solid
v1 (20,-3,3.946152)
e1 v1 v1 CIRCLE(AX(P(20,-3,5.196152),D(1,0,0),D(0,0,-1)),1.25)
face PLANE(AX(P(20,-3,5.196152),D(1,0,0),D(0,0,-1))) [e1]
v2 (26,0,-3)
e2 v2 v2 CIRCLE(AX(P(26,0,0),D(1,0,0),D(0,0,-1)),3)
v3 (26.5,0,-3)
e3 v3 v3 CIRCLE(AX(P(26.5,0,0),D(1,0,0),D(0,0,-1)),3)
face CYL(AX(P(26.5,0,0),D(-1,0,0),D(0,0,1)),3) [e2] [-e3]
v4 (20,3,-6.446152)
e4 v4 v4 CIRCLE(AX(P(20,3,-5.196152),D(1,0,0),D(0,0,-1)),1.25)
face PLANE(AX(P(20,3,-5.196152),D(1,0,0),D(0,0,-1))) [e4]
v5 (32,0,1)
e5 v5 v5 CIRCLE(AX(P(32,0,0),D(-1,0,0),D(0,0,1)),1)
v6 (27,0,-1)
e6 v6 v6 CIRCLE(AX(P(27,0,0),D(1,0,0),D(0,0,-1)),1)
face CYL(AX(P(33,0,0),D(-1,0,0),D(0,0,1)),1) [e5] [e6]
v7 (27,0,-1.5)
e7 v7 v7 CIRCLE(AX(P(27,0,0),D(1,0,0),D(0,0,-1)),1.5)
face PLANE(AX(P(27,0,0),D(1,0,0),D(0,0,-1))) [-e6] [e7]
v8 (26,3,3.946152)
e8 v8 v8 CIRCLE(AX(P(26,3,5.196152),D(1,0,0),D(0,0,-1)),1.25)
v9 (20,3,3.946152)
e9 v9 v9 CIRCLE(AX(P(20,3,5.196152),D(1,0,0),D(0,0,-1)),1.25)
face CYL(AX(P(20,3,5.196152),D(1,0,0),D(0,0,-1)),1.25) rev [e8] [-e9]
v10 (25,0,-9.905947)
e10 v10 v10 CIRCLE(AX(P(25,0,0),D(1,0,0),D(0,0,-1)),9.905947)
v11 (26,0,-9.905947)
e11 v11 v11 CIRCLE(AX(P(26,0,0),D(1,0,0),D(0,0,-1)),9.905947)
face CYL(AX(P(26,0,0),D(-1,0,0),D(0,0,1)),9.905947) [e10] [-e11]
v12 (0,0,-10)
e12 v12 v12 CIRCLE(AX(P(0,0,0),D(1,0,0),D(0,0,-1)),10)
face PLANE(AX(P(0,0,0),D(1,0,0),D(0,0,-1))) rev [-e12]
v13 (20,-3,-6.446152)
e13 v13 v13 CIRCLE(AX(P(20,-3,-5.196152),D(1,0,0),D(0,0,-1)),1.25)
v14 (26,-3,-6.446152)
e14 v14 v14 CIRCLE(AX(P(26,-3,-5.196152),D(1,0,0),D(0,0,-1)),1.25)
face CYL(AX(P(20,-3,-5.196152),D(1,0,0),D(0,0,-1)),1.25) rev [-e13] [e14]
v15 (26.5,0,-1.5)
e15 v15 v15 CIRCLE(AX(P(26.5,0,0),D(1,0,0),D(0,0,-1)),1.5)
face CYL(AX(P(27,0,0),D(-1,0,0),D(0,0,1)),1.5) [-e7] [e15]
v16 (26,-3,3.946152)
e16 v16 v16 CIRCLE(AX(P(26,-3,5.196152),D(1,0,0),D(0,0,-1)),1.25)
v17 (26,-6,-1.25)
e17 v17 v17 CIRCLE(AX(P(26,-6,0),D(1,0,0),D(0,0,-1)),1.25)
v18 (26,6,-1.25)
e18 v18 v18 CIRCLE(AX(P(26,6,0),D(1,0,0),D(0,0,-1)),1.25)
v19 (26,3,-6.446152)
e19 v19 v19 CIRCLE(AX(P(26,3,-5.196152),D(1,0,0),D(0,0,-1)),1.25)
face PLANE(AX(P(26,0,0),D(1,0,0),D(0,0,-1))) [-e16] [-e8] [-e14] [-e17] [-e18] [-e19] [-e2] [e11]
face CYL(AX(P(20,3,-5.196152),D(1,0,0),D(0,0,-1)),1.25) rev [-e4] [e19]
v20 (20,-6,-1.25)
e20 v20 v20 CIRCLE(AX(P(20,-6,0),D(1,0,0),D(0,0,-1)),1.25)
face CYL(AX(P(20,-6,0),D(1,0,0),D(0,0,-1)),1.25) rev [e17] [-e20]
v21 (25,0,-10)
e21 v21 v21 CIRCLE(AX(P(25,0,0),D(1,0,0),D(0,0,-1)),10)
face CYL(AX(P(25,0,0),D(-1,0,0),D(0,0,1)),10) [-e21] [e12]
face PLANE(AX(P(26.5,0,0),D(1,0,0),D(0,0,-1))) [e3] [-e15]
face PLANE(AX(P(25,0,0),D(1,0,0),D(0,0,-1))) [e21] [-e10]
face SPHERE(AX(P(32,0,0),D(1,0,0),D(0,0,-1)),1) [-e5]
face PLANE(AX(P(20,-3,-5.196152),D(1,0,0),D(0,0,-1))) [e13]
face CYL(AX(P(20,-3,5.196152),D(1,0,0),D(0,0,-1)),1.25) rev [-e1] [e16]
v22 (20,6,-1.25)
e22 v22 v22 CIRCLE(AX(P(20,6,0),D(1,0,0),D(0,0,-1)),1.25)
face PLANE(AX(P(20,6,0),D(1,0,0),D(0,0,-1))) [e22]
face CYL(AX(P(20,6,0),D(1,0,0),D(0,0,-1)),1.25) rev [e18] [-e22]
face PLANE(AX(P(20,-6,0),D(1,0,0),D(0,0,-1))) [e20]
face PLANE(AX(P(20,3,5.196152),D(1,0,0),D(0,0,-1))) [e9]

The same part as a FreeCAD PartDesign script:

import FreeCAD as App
import Part
import Sketcher

V = App.Vector


def edges_at(feature, points):
    """Names of the edges that pass closest to the given points."""
    edges = feature.Shape.Edges
    near = lambda p: min(range(len(edges)), key=lambda i: edges[i].distToShape(Part.Vertex(*p))[0])
    return sorted({f"Edge{near(p) + 1}" for p in points})

doc = App.newDocument("Part")
body = doc.addObject("PartDesign::Body", "Body")

sketch1 = doc.addObject("Sketcher::SketchObject", "Sketch")
body.addObject(sketch1)
sketch1.AttachmentSupport = (doc.YZ_Plane, [""])
sketch1.MapMode = "FlatFace"
sketch1.addGeometry(Part.Circle(V(0, 0, 0), V(0, 0, 1), 10), False)
sketch1.addConstraint(Sketcher.Constraint("Coincident", 0, 3, -1, 1))
sketch1.addConstraint(Sketcher.Constraint("Diameter", 0, 20.0))
pad1 = doc.addObject("PartDesign::Pad", "Pad")
body.addObject(pad1)
pad1.Profile = sketch1
pad1.Length = 25

sketch2 = doc.addObject("Sketcher::SketchObject", "Sketch001")
body.addObject(sketch2)
sketch2.AttachmentSupport = (doc.YZ_Plane, [""])
sketch2.MapMode = "FlatFace"
sketch2.AttachmentOffset = App.Placement(V(0, 0, 25), App.Rotation())
sketch2.addGeometry(Part.Circle(V(0, 0, 0), V(0, 0, 1), 3), False)
sketch2.addConstraint(Sketcher.Constraint("Coincident", 0, 3, -1, 1))
sketch2.addConstraint(Sketcher.Constraint("Diameter", 0, 6.0))
pad2 = doc.addObject("PartDesign::Pad", "Pad001")
body.addObject(pad2)
pad2.Profile = sketch2
pad2.Length = 1.5

sketch3 = doc.addObject("Sketcher::SketchObject", "Sketch002")
body.addObject(sketch3)
sketch3.AttachmentSupport = (doc.YZ_Plane, [""])
sketch3.MapMode = "FlatFace"
sketch3.AttachmentOffset = App.Placement(V(0, 0, 26.5), App.Rotation())
sketch3.addGeometry(Part.Circle(V(0, 0, 0), V(0, 0, 1), 1.5), False)
sketch3.addConstraint(Sketcher.Constraint("Coincident", 0, 3, -1, 1))
sketch3.addConstraint(Sketcher.Constraint("Diameter", 0, 3.0))
pad3 = doc.addObject("PartDesign::Pad", "Pad002")
body.addObject(pad3)
pad3.Profile = sketch3
pad3.Length = 0.5

sketch4 = doc.addObject("Sketcher::SketchObject", "Sketch003")
body.addObject(sketch4)
sketch4.AttachmentSupport = (doc.YZ_Plane, [""])
sketch4.MapMode = "FlatFace"
sketch4.AttachmentOffset = App.Placement(V(0, 0, 27), App.Rotation())
sketch4.addGeometry(Part.Circle(V(0, 0, 0), V(0, 0, 1), 1), False)
sketch4.addConstraint(Sketcher.Constraint("Coincident", 0, 3, -1, 1))
sketch4.addConstraint(Sketcher.Constraint("Diameter", 0, 2.0))
pad4 = doc.addObject("PartDesign::Pad", "Pad003")
body.addObject(pad4)
pad4.Profile = sketch4
pad4.Length = 6
doc.recompute()

fillet = doc.addObject("PartDesign::Fillet", "Fillet")
body.addObject(fillet)
fillet.Base = (pad4, edges_at(pad4, [(33, 0, 1)]))
fillet.Radius = 1

sketch5 = doc.addObject("Sketcher::SketchObject", "Sketch004")
body.addObject(sketch5)
sketch5.AttachmentSupport = (doc.YZ_Plane, [""])
sketch5.MapMode = "FlatFace"
sketch5.AttachmentOffset = App.Placement(V(0, 0, 25), App.Rotation())
sketch5.addGeometry(Part.Circle(V(0, 0, 0), V(0, 0, 1), 9.905947), False)
sketch5.addConstraint(Sketcher.Constraint("Coincident", 0, 3, -1, 1))
sketch5.addConstraint(Sketcher.Constraint("Diameter", 0, 19.811894))
pad5 = doc.addObject("PartDesign::Pad", "Pad004")
body.addObject(pad5)
pad5.Profile = sketch5
pad5.Length = 1

sketch6 = doc.addObject("Sketcher::SketchObject", "Sketch005")
body.addObject(sketch6)
sketch6.AttachmentSupport = (doc.YZ_Plane, [""])
sketch6.MapMode = "FlatFace"
sketch6.AttachmentOffset = App.Placement(V(0, 0, 26), App.Rotation())
sketch6.addGeometry(Part.Circle(V(6, 0, 0), V(0, 0, 1), 1.25), False)
sketch6.addGeometry(Part.Circle(V(3, -5.196152, 0), V(0, 0, 1), 1.25), False)
sketch6.addGeometry(Part.Circle(V(-3, -5.196152, 0), V(0, 0, 1), 1.25), False)
sketch6.addGeometry(Part.Circle(V(-6, 0, 0), V(0, 0, 1), 1.25), False)
sketch6.addGeometry(Part.Circle(V(-3, 5.196152, 0), V(0, 0, 1), 1.25), False)
sketch6.addGeometry(Part.Circle(V(3, 5.196152, 0), V(0, 0, 1), 1.25), False)
sketch6.addConstraint(Sketcher.Constraint("Equal", 0, 1))
sketch6.addConstraint(Sketcher.Constraint("Equal", 1, 2))
sketch6.addConstraint(Sketcher.Constraint("Equal", 2, 3))
sketch6.addConstraint(Sketcher.Constraint("Equal", 3, 4))
sketch6.addConstraint(Sketcher.Constraint("Equal", 4, 5))
sketch6.addConstraint(Sketcher.Constraint("Symmetric", 0, 3, 3, 3, -1, 1))
sketch6.addConstraint(Sketcher.Constraint("Symmetric", 1, 3, 4, 3, -1, 1))
sketch6.addConstraint(Sketcher.Constraint("Symmetric", 2, 3, 5, 3, -1, 1))
sketch6.addConstraint(Sketcher.Constraint("Symmetric", 1, 3, 2, 3, -2))
sketch6.addConstraint(Sketcher.Constraint("PointOnObject", 0, 3, -1))
sketch6.addConstraint(Sketcher.Constraint("Diameter", 0, 2.5))
sketch6.addConstraint(Sketcher.Constraint("DistanceX", -1, 1, 0, 3, 6.0))
sketch6.addConstraint(Sketcher.Constraint("DistanceX", -1, 1, 1, 3, 3.0))
sketch6.addConstraint(Sketcher.Constraint("DistanceY", 1, 3, -1, 1, 5.196152))
pocket1 = doc.addObject("PartDesign::Pocket", "Pocket")
body.addObject(pocket1)
pocket1.Profile = sketch6
pocket1.Length = 6

doc.recompute()
